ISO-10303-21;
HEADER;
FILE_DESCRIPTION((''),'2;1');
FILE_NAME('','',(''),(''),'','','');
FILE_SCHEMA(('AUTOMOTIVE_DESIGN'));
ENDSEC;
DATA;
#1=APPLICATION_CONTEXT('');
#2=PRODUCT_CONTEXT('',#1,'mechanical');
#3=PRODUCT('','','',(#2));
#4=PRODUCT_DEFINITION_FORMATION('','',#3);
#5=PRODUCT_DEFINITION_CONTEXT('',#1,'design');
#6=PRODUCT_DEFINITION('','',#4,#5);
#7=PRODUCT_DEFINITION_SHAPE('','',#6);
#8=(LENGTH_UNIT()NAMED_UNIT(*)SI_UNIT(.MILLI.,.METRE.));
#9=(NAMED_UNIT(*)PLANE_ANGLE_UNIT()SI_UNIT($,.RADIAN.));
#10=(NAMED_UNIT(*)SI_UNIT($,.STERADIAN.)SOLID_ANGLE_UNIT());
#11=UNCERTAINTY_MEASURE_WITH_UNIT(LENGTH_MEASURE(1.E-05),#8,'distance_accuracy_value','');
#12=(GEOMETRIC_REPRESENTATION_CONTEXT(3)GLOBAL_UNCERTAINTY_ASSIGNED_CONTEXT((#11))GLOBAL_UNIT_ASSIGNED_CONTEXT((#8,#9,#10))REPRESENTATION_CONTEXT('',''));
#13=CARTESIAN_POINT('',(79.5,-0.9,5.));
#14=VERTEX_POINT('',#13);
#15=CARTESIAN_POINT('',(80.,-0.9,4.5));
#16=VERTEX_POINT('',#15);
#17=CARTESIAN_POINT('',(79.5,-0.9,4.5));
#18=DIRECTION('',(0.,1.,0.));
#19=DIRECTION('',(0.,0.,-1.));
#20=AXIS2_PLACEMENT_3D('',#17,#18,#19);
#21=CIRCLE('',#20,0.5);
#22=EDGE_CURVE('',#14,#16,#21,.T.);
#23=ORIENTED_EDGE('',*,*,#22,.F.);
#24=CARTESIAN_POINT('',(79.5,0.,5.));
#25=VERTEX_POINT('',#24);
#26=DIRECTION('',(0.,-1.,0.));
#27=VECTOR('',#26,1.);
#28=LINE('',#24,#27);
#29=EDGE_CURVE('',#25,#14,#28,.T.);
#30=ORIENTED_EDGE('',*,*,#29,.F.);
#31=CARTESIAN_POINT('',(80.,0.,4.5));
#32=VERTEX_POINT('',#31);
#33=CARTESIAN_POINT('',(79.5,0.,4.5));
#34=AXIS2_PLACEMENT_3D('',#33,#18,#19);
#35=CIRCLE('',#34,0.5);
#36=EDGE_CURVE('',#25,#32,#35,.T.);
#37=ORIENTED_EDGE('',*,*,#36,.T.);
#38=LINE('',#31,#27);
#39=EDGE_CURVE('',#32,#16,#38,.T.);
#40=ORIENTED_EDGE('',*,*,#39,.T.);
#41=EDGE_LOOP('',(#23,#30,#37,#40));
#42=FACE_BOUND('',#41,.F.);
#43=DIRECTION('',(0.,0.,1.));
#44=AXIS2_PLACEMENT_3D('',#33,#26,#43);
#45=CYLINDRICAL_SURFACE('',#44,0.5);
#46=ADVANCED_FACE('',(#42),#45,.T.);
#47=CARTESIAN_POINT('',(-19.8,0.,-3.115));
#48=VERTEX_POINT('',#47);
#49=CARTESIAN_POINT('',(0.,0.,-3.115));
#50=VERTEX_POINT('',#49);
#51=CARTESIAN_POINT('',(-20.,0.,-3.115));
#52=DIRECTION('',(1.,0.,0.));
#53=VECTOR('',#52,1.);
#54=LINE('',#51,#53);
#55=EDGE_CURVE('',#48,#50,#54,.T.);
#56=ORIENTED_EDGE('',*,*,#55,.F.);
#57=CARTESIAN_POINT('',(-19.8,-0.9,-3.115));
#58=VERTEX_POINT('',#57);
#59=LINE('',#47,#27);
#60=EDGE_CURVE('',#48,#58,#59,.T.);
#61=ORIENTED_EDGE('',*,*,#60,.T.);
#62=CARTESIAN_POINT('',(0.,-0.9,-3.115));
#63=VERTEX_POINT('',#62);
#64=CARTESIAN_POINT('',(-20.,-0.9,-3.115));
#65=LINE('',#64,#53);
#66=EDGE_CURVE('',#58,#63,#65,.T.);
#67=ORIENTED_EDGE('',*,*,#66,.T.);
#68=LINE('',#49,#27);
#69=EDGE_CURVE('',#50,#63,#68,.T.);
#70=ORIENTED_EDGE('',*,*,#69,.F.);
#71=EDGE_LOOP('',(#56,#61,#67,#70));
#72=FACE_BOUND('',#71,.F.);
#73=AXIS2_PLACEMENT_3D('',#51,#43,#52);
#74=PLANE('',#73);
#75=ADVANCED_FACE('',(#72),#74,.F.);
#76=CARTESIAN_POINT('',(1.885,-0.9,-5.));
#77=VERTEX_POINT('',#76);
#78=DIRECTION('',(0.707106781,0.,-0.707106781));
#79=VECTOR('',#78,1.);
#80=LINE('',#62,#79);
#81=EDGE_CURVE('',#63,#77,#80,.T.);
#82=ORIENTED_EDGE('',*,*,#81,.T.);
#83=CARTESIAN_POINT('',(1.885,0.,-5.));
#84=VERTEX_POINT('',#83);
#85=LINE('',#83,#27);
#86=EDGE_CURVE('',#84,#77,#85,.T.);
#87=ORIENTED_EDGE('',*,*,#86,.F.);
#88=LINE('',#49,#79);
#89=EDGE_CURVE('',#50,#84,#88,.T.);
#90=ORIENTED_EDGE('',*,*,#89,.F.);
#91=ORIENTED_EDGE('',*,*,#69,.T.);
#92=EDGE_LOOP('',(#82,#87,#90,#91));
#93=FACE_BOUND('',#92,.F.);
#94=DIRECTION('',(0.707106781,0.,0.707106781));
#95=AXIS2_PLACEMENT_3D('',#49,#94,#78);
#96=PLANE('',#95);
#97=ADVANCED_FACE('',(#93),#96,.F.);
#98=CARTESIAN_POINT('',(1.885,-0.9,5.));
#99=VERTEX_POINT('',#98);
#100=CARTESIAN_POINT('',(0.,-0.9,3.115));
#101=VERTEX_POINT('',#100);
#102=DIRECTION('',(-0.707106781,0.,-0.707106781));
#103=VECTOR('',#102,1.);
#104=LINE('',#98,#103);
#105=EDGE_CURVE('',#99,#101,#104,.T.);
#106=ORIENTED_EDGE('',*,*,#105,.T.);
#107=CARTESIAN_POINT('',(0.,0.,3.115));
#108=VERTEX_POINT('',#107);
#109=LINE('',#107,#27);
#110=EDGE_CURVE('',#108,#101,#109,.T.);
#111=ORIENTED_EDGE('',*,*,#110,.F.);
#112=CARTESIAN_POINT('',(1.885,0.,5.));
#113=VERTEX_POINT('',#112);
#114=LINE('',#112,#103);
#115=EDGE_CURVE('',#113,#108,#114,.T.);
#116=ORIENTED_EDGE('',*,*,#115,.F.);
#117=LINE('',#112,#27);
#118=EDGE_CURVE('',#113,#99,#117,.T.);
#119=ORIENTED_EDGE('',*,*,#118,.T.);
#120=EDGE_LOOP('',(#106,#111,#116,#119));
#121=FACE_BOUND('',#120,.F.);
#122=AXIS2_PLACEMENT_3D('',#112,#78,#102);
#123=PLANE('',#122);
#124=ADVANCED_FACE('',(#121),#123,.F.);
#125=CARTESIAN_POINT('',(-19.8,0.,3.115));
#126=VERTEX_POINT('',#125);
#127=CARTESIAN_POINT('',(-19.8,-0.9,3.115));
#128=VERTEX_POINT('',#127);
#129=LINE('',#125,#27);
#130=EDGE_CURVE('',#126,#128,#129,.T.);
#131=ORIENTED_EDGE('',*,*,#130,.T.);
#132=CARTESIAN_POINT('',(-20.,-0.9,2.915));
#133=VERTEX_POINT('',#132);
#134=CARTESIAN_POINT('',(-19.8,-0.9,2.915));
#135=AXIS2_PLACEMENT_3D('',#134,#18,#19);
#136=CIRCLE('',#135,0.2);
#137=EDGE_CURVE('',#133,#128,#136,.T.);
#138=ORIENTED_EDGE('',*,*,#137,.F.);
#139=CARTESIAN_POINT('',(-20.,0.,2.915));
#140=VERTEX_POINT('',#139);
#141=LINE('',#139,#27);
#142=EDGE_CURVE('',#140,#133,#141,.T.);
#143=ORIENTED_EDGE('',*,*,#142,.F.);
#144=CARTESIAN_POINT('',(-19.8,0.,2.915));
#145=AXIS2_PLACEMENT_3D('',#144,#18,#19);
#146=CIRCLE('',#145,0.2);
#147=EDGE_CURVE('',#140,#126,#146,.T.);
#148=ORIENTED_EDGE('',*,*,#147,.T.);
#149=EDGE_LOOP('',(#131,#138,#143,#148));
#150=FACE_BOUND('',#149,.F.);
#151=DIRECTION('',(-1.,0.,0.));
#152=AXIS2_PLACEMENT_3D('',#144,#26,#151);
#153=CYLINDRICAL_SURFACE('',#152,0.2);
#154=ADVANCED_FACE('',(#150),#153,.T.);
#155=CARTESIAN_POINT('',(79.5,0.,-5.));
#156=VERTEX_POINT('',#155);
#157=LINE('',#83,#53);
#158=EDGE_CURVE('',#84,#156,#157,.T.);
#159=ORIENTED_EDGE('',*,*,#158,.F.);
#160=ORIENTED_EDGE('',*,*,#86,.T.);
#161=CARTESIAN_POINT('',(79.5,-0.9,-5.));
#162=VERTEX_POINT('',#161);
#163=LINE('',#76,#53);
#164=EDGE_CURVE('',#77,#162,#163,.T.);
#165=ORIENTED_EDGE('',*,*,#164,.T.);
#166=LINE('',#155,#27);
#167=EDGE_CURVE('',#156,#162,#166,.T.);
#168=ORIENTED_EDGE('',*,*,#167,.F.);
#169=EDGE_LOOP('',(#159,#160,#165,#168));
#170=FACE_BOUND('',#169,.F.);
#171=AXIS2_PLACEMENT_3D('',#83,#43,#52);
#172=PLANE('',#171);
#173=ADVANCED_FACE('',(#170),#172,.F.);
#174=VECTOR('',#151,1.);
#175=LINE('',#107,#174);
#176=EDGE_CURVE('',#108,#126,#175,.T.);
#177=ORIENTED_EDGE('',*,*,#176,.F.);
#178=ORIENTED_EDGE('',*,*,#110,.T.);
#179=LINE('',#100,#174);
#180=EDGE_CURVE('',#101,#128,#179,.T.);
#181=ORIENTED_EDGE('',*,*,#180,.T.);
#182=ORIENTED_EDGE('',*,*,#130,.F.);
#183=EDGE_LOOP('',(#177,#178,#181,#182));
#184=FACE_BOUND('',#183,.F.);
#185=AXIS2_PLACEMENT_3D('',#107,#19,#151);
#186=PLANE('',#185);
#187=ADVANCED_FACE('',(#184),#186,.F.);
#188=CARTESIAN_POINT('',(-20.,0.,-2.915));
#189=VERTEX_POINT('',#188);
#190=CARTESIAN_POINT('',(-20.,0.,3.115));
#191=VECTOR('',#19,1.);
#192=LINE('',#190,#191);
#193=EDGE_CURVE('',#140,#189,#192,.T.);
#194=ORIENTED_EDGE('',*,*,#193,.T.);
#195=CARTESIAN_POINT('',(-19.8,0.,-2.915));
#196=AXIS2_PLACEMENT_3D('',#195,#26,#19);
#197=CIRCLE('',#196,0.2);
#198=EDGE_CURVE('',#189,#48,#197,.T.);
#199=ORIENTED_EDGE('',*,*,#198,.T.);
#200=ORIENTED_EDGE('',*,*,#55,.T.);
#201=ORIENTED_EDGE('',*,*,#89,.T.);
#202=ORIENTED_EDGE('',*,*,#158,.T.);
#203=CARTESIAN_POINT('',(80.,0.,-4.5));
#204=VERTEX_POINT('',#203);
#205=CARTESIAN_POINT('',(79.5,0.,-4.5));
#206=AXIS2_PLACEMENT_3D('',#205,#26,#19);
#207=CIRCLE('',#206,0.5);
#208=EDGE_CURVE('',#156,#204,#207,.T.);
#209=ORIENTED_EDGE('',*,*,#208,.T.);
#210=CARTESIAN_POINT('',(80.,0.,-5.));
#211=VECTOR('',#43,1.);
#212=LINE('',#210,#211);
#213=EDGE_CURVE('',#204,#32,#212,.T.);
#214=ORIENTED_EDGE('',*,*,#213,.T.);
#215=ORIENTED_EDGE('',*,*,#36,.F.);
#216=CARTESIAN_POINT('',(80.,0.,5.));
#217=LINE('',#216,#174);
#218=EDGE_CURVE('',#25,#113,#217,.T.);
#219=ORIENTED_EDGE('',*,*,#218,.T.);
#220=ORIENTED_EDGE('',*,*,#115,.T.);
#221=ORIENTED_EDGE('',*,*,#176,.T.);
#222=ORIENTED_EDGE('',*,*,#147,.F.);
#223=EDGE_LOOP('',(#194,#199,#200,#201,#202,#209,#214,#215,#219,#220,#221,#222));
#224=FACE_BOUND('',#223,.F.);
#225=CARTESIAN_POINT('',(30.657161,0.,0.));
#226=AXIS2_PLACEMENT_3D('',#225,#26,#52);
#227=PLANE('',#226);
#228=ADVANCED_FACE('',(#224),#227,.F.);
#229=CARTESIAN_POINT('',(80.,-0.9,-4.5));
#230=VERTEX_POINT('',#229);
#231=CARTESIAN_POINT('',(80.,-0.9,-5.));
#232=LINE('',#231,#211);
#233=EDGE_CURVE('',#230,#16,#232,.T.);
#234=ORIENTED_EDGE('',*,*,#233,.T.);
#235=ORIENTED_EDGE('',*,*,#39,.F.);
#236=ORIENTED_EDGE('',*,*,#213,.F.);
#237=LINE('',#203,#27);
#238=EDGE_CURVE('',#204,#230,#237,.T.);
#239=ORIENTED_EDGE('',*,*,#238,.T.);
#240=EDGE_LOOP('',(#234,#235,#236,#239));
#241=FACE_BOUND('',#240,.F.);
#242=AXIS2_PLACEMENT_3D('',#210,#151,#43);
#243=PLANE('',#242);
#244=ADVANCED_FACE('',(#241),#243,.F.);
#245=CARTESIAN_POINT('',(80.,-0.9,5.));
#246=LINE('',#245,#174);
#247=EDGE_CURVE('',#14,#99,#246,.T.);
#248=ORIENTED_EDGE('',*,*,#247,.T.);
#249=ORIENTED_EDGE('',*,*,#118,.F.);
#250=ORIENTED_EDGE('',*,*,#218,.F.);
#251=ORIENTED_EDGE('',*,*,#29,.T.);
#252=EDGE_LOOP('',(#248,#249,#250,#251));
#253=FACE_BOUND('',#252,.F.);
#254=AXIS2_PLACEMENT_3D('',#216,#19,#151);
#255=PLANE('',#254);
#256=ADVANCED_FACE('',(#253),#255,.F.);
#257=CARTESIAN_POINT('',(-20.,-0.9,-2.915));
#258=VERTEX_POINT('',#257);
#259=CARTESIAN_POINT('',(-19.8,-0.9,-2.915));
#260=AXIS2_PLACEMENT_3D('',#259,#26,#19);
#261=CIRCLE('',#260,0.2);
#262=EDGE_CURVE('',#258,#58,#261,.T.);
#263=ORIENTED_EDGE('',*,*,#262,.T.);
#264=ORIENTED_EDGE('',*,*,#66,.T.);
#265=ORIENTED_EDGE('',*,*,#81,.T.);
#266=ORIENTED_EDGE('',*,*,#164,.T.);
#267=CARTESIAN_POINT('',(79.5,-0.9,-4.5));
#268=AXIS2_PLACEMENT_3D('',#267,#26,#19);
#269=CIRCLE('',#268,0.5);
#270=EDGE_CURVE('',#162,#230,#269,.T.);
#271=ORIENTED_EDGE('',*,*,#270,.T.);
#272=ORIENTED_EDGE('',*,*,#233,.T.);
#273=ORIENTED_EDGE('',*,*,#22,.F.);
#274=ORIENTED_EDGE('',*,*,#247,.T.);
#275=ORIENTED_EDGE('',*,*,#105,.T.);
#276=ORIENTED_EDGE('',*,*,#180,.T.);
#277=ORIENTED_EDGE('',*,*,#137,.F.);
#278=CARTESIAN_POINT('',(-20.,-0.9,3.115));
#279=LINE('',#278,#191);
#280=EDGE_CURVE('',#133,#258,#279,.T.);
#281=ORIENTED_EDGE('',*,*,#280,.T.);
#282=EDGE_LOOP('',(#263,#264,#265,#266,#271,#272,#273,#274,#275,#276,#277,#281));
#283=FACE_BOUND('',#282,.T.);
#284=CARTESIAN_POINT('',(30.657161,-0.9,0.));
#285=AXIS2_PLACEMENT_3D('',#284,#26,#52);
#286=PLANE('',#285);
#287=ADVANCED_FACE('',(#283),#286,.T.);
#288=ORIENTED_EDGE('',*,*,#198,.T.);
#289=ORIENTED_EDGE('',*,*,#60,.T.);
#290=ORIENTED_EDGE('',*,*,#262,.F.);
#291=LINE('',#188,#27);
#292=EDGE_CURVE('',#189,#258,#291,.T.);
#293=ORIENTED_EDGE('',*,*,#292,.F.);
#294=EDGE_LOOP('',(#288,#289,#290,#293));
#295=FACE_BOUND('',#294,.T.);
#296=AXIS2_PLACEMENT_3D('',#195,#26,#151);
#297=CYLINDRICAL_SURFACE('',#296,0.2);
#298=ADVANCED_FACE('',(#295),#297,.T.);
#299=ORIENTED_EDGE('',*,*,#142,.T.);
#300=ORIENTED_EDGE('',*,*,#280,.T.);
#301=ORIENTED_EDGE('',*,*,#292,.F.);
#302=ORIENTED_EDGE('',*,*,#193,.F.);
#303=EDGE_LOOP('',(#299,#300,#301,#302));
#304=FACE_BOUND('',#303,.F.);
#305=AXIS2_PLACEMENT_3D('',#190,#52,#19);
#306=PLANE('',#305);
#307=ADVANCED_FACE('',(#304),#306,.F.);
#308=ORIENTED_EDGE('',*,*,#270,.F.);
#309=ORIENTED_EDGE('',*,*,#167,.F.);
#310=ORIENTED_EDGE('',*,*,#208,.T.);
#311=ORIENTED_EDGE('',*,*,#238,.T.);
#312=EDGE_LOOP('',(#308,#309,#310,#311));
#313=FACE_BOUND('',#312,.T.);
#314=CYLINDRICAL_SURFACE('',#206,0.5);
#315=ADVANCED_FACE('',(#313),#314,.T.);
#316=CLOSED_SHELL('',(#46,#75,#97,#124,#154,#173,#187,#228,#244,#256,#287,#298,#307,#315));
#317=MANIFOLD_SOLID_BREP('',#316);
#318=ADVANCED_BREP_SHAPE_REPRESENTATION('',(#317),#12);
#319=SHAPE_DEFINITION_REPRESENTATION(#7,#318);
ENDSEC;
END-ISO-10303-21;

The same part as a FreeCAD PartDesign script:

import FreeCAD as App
import Part
import Sketcher
from FreeCAD import Vector
Q = App.Units.Quantity


def edges_at(feature, points):
    """Names of the edges that pass closest to the given points."""
    edges = feature.Shape.Edges
    near = lambda p: min(range(len(edges)), key=lambda i: edges[i].distToShape(Part.Vertex(*p))[0])
    return sorted({f"Edge{near(p) + 1}" for p in points})


def add_polygon(sketch, points):
    """Adds a closed chain of lines whose ends are joined by coincident constraints."""
    first, n = sketch.GeometryCount, len(points)
    for a, b in zip(points, points[1:] + points[:1]):
        sketch.addGeometry(Part.LineSegment(App.Vector(*a, 0), App.Vector(*b, 0)), False)
    for i in range(n):
        sketch.addConstraint(Sketcher.Constraint("Coincident", first + i, 2, first + (i + 1) % n, 1))

doc = App.newDocument("Part")
params = doc.addObject("Spreadsheet::Sheet", "Params")
for row, (alias, value) in enumerate([
    ("sketch1_width", "20 mm"),
    ("sketch1_height", "10 mm"),
    ("sketch1_height2", "6.23 mm"),
    ("pad1_length", "0.9 mm"),
    ("fillet_radius", "0.2 mm"),
    ("fillet2_radius", "0.5 mm"),
], start=1):
    params.set(f"A{row}", alias)
    params.set(f"B{row}", "=" + value)
    params.setAlias(f"B{row}", alias)

body = doc.addObject("PartDesign::Body", "Body")

# Sketch on XZ plane
sketch1 = body.newObject("Sketcher::SketchObject", "Sketch")
sketch1.AttachmentSupport = (doc.getObject("XZ_Plane"), [""])
sketch1.MapMode = "FlatFace"
add_polygon(sketch1, [(-20, 3.1), (-20, -3.1), (0, -3.1), (1.9, -5), (80, -5), (80, 5), (1.9, 5), (0, 3.1)])  # lines 0-7
sketch1.addConstraint([
    Sketcher.Constraint("Vertical", 0),
    Sketcher.Constraint("Horizontal", 1),
    Sketcher.Constraint("Horizontal", 3),
    Sketcher.Constraint("Vertical", 4),
    Sketcher.Constraint("Horizontal", 5),
    Sketcher.Constraint("Horizontal", 7),
    Sketcher.Constraint("Symmetric", 1, 2, 6, 2, -1, 1),
    Sketcher.Constraint("Symmetric", 2, 2, 5, 2, -1),
    Sketcher.Constraint("PointOnObject", 1, 2, -2),
    Sketcher.Constraint("Perpendicular", 2, 6),
    Sketcher.Constraint("DistanceX", 1, 1, 1, 2, Q("20 mm")),
    Sketcher.Constraint("DistanceY", 4, 1, 4, 2, Q("10 mm")),
    Sketcher.Constraint("DistanceX", -1, 1, 3, 2, Q("80 mm")),
    Sketcher.Constraint("DistanceY", 0, 2, 0, 1, Q("6.23 mm")),
])
sketch1.setExpression("Constraints[18]", "Params.sketch1_width")
sketch1.setExpression("Constraints[19]", "Params.sketch1_height")
sketch1.setExpression("Constraints[21]", "Params.sketch1_height2")
pad1 = body.newObject("PartDesign::Pad", "Pad")
pad1.Profile = sketch1
pad1.setExpression("Length", "Params.pad1_length")
doc.recompute()

fillet = body.newObject("PartDesign::Fillet", "Fillet")
fillet.Base = (pad1, edges_at(pad1, [(-20, -0.45, -3.115), (-20, -0.45, 3.115)]))
fillet.setExpression("Radius", "Params.fillet_radius")
doc.recompute()

fillet2 = body.newObject("PartDesign::Fillet", "Fillet001")
fillet2.Base = (fillet, edges_at(fillet, [(80, -0.45, -5), (80, -0.45, 5)]))
fillet2.setExpression("Radius", "Params.fillet2_radius")

doc.recompute()
